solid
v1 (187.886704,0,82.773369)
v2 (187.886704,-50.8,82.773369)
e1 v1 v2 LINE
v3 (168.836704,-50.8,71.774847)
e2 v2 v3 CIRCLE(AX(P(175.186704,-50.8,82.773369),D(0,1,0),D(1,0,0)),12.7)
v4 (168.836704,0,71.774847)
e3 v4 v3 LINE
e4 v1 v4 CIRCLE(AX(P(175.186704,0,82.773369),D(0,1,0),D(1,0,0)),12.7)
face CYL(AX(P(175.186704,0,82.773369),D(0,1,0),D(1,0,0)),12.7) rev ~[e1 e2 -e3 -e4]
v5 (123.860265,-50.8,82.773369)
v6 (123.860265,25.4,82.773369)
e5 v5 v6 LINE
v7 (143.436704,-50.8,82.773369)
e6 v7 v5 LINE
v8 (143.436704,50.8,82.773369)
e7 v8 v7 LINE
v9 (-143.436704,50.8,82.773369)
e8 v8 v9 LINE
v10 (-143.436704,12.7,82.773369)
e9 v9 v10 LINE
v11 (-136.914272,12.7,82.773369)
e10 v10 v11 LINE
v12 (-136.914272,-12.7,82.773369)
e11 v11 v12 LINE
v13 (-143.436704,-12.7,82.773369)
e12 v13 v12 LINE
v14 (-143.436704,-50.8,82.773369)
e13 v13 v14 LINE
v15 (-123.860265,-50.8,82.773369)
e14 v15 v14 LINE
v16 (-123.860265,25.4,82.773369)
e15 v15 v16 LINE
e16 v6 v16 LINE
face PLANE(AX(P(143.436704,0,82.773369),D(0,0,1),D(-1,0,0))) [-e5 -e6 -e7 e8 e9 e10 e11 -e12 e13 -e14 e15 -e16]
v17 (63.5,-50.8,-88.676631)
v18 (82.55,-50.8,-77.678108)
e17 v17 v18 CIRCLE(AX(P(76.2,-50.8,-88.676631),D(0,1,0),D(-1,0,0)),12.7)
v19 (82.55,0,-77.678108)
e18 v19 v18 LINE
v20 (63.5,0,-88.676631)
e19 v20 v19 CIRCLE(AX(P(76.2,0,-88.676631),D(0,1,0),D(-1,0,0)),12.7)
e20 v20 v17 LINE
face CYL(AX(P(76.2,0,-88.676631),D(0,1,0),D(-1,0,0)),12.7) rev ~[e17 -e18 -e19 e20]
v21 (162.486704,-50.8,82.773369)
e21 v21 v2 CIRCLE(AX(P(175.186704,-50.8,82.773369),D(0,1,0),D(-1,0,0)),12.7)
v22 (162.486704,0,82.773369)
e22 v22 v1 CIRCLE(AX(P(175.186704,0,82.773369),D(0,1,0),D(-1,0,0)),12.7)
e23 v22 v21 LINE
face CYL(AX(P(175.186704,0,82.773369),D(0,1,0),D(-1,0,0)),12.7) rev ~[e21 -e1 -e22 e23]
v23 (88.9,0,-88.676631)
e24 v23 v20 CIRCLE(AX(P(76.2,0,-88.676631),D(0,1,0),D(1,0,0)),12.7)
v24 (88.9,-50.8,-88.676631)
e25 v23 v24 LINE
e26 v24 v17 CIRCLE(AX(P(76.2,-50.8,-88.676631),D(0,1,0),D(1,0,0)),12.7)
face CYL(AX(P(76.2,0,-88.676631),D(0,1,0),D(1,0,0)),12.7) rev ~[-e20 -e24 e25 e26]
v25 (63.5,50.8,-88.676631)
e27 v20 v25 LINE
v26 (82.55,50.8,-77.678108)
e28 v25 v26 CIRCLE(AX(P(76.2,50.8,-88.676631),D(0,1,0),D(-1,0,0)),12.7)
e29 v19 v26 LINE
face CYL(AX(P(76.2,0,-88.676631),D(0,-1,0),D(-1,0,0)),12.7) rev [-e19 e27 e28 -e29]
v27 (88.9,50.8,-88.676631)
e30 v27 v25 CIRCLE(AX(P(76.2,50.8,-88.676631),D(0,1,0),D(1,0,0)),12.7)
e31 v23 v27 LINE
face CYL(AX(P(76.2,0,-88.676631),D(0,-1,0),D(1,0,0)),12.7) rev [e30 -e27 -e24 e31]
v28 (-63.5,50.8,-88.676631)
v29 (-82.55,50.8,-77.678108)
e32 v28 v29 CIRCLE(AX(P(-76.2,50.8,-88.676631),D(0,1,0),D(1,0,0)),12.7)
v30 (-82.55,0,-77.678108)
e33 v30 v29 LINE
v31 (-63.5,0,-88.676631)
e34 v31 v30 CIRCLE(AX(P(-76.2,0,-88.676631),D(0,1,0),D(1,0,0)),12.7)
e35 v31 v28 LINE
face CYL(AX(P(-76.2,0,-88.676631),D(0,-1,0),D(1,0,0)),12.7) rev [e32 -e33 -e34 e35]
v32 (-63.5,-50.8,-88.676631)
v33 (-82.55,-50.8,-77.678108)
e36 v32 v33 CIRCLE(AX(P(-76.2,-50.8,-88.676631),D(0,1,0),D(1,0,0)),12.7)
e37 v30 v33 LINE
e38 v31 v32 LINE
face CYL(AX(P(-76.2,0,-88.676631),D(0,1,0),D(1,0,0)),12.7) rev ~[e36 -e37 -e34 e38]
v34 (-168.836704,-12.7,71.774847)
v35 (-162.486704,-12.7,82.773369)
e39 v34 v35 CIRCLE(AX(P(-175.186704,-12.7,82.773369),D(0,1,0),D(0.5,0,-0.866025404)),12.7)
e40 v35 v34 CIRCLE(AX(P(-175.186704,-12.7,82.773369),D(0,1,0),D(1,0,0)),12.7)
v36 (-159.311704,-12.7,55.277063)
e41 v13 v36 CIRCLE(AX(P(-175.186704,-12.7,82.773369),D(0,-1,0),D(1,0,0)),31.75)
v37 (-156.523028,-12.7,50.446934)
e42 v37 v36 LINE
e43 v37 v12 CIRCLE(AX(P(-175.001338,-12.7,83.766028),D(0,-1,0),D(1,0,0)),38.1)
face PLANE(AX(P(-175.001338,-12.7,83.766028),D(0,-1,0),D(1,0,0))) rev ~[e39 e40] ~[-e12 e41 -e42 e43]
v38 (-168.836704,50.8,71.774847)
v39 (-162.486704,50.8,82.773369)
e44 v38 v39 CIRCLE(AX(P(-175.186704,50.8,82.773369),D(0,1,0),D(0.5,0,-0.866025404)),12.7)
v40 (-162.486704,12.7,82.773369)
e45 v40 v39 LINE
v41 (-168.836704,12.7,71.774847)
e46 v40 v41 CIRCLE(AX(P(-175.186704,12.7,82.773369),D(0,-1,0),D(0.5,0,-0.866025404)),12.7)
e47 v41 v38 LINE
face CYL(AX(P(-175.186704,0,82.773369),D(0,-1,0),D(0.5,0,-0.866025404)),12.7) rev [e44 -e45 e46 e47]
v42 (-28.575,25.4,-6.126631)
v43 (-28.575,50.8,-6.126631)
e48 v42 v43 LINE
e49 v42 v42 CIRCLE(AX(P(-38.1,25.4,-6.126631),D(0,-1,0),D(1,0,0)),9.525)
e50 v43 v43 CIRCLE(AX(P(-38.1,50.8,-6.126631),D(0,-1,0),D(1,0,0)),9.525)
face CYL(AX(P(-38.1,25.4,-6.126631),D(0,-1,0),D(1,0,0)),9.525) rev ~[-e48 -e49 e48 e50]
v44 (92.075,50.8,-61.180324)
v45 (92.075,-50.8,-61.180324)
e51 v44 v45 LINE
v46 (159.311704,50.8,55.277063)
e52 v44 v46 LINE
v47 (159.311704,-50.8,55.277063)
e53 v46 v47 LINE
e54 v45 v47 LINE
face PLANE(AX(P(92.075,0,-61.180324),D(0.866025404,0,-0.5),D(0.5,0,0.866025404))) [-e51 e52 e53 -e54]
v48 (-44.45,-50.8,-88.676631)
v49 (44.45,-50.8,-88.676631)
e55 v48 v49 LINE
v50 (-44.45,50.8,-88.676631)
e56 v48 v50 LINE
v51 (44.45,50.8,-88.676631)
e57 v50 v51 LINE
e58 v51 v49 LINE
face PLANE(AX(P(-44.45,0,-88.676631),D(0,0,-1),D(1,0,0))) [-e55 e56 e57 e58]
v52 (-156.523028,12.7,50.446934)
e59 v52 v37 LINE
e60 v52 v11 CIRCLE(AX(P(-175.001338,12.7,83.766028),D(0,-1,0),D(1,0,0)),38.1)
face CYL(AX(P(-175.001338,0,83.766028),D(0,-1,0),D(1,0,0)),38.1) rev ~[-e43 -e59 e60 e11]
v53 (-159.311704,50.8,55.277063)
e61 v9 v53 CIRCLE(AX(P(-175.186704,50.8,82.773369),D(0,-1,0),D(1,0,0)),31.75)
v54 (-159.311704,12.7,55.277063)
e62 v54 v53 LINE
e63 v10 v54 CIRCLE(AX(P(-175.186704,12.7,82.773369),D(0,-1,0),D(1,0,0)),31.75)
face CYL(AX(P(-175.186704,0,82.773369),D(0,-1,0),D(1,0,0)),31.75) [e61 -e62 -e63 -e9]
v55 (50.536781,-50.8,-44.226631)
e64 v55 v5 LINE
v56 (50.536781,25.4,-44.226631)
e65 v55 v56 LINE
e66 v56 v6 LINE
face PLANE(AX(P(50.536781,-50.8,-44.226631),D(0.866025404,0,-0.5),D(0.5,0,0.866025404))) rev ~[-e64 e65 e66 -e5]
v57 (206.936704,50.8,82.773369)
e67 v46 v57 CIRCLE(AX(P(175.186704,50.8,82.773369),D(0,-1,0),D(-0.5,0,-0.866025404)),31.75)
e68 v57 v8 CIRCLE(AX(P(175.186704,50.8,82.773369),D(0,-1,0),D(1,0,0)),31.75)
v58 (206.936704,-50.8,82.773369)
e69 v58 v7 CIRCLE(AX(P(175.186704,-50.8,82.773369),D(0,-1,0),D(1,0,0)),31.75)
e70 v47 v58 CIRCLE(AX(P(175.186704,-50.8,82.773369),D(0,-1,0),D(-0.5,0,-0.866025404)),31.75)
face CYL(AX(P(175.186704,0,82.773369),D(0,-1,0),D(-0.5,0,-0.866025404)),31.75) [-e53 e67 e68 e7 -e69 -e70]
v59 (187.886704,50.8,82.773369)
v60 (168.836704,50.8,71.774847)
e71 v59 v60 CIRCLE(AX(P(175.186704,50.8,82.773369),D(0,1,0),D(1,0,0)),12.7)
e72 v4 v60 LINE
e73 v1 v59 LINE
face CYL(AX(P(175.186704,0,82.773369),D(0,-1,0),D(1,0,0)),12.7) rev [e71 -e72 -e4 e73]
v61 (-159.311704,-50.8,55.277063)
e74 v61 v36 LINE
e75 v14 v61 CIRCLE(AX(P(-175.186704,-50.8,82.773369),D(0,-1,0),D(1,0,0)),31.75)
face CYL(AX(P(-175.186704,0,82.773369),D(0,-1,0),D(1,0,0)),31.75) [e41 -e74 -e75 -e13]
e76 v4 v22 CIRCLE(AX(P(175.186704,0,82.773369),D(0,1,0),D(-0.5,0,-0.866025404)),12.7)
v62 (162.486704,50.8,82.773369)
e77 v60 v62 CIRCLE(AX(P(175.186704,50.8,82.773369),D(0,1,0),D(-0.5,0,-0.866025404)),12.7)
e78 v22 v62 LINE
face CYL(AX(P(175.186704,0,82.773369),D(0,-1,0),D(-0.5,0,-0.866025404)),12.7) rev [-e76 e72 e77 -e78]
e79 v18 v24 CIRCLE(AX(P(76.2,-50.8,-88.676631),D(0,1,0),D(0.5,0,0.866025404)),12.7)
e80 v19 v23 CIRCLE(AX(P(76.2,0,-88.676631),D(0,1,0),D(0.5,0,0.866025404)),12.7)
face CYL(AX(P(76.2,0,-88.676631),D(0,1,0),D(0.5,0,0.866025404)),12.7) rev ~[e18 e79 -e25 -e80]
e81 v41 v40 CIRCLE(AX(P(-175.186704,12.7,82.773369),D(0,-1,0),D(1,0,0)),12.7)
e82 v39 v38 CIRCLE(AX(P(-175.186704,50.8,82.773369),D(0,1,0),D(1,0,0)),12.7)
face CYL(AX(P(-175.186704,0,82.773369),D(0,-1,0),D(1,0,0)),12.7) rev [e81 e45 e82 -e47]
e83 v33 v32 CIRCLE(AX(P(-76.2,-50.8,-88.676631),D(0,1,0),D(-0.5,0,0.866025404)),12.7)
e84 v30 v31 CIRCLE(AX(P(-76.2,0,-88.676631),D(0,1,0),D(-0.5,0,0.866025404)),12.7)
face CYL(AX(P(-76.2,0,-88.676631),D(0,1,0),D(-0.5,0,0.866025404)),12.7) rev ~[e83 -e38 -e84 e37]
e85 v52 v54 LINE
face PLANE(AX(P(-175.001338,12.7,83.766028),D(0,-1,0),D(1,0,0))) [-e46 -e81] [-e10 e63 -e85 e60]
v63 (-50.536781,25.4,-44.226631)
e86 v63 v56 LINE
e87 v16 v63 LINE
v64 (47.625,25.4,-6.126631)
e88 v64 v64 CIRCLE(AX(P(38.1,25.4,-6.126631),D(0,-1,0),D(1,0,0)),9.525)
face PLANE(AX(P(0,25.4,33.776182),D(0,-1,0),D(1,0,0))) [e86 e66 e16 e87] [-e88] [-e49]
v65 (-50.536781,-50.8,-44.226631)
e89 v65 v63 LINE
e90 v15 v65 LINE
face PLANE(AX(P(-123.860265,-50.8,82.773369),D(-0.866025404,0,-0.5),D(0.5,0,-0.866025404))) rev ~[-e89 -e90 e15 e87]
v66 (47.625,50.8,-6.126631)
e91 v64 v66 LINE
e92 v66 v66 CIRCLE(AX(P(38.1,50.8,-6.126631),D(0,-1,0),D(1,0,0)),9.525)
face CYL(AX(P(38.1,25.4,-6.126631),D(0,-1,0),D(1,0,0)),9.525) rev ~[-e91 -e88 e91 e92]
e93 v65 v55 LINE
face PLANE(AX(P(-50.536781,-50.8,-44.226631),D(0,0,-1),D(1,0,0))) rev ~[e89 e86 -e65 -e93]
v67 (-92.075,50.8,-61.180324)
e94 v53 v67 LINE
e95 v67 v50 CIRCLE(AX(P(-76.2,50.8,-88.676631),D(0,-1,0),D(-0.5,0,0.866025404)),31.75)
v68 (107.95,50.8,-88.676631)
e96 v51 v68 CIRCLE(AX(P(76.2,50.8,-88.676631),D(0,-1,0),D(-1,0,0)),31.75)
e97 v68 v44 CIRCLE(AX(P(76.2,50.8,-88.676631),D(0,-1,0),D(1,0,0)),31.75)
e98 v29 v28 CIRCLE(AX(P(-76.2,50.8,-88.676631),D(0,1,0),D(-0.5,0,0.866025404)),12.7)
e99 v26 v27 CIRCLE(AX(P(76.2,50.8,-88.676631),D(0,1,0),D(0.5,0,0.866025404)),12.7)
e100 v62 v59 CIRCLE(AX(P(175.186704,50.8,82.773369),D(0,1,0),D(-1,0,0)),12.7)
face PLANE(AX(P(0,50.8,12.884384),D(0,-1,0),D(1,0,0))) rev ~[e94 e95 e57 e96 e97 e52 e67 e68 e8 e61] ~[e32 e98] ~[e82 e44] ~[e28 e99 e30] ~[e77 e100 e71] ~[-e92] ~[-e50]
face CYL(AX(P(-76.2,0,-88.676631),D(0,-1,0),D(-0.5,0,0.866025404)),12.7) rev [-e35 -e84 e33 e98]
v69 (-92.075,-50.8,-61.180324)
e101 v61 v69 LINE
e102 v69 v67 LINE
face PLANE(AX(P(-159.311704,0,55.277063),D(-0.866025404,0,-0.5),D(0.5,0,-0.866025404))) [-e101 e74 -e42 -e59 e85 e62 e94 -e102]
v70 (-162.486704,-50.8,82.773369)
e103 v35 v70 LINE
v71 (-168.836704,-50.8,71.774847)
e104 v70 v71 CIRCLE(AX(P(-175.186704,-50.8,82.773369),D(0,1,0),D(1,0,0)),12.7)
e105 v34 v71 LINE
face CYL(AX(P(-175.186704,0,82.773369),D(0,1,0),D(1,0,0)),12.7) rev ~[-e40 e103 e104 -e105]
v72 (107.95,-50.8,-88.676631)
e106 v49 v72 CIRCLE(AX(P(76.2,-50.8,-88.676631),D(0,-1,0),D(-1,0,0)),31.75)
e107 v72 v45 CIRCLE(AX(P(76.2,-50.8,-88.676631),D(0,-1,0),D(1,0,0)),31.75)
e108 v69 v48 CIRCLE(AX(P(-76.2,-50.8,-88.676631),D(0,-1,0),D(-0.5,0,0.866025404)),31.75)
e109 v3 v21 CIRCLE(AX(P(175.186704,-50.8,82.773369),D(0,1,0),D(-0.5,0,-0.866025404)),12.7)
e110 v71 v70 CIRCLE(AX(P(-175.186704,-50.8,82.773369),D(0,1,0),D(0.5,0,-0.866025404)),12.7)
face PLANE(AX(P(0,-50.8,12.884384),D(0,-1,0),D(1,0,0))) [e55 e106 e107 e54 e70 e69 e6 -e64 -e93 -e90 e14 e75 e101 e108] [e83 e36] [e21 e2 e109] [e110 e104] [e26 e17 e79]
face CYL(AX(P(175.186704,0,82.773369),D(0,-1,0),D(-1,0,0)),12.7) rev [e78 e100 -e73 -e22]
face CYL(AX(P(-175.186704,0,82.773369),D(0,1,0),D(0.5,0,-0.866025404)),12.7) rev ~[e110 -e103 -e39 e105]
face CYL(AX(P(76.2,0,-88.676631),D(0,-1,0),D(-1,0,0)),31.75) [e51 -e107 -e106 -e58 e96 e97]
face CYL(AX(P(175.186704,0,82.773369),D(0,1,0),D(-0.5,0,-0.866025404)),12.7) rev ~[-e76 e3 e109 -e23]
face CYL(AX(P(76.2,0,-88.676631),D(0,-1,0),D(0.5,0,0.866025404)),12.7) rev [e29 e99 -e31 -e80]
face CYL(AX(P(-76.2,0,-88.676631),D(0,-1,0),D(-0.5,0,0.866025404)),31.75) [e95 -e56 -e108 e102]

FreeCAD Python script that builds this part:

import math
import FreeCAD as App
import Part
import Sketcher
Q = App.Units.Quantity


def add_polygon(sketch, points):
    """Adds a closed chain of lines whose ends are joined by coincident constraints."""
    first, n = sketch.GeometryCount, len(points)
    for a, b in zip(points, points[1:] + points[:1]):
        sketch.addGeometry(Part.LineSegment(App.Vector(*a, 0), App.Vector(*b, 0)), False)
    for i in range(n):
        sketch.addConstraint(Sketcher.Constraint("Coincident", first + i, 2, first + (i + 1) % n, 1))

doc = App.newDocument("Part")
body = doc.addObject("PartDesign::Body", "Body")

sketch1 = doc.addObject("Sketcher::SketchObject", "Sketch")
body.addObject(sketch1)
sketch1.AttachmentSupport = (doc.XZ_Plane, [""])
sketch1.MapMode = "FlatFace"
sketch1.addGeometry([
    Part.LineSegment(App.Vector(-44, -89, 0), App.Vector(44, -89, 0)),
    Part.ArcOfCircle(Part.Circle(App.Vector(76, -89, 0), App.Vector(0, 0, 1), 32), math.radians(180), math.radians(360)),
    Part.ArcOfCircle(Part.Circle(App.Vector(76, -89, 0), App.Vector(0, 0, 1), 32), math.radians(0), math.radians(60)),
    Part.LineSegment(App.Vector(92, -61, 0), App.Vector(159, 55, 0)),
    Part.ArcOfCircle(Part.Circle(App.Vector(175, 83, 0), App.Vector(0, 0, 1), 32), math.radians(-120), math.radians(0)),
    Part.ArcOfCircle(Part.Circle(App.Vector(175, 83, 0), App.Vector(0, 0, 1), 32), math.radians(0), math.radians(180)),
    Part.LineSegment(App.Vector(143, 83, 0), App.Vector(-143, 83, 0)),
    Part.ArcOfCircle(Part.Circle(App.Vector(-175, 83, 0), App.Vector(0, 0, 1), 32), math.radians(0), math.radians(300)),
    Part.LineSegment(App.Vector(-159, 55, 0), App.Vector(-92, -61, 0)),
    Part.ArcOfCircle(Part.Circle(App.Vector(-76, -89, 0), App.Vector(0, 0, 1), 32), math.radians(120), math.radians(360)),
    Part.ArcOfCircle(Part.Circle(App.Vector(-175, 83, 0), App.Vector(0, 0, 1), 13), math.radians(-60), math.radians(0)),
    Part.ArcOfCircle(Part.Circle(App.Vector(-175, 83, 0), App.Vector(0, 0, 1), 13), math.radians(0), math.radians(300)),
    Part.ArcOfCircle(Part.Circle(App.Vector(175, 83, 0), App.Vector(0, 0, 1), 13), math.radians(180), math.radians(240)),
    Part.ArcOfCircle(Part.Circle(App.Vector(175, 83, 0), App.Vector(0, 0, 1), 13), math.radians(0), math.radians(180)),
    Part.ArcOfCircle(Part.Circle(App.Vector(175, 83, 0), App.Vector(0, 0, 1), 13), math.radians(-120), math.radians(0)),
    Part.ArcOfCircle(Part.Circle(App.Vector(76, -89, 0), App.Vector(0, 0, 1), 13), math.radians(60), math.radians(180)),
    Part.ArcOfCircle(Part.Circle(App.Vector(76, -89, 0), App.Vector(0, 0, 1), 13), math.radians(0), math.radians(60)),
    Part.ArcOfCircle(Part.Circle(App.Vector(76, -89, 0), App.Vector(0, 0, 1), 13), math.radians(180), math.radians(360)),
    Part.ArcOfCircle(Part.Circle(App.Vector(-76, -89, 0), App.Vector(0, 0, 1), 13), math.radians(0), math.radians(120)),
    Part.ArcOfCircle(Part.Circle(App.Vector(-76, -89, 0), App.Vector(0, 0, 1), 13), math.radians(120), math.radians(360)),
], False)
sketch1.addConstraint([
    Sketcher.Constraint("Coincident", 0, 2, 1, 1),
    Sketcher.Constraint("Tangent", 1, 2, 2, 1),
    Sketcher.Constraint("Coincident", 2, 2, 3, 1),
    Sketcher.Constraint("Coincident", 3, 2, 4, 1),
    Sketcher.Constraint("Tangent", 4, 2, 5, 1),
    Sketcher.Constraint("Coincident", 5, 2, 6, 1),
    Sketcher.Constraint("Coincident", 6, 2, 7, 1),
    Sketcher.Constraint("Coincident", 7, 2, 8, 1),
    Sketcher.Constraint("Coincident", 8, 2, 9, 1),
    Sketcher.Constraint("Coincident", 9, 2, 0, 1),
    Sketcher.Constraint("Tangent", 10, 1, 11, 2),
    Sketcher.Constraint("Coincident", 11, 1, 10, 2),
    Sketcher.Constraint("Tangent", 12, 1, 13, 2),
    Sketcher.Constraint("Tangent", 13, 1, 14, 2),
    Sketcher.Constraint("Tangent", 14, 1, 12, 2),
    Sketcher.Constraint("Tangent", 15, 1, 16, 2),
    Sketcher.Constraint("Tangent", 16, 1, 17, 2),
    Sketcher.Constraint("Tangent", 17, 1, 15, 2),
    Sketcher.Constraint("Tangent", 18, 1, 19, 2),
    Sketcher.Constraint("Coincident", 19, 1, 18, 2),
    Sketcher.Constraint("Horizontal", 0),
    Sketcher.Constraint("Horizontal", 6),
    Sketcher.Constraint("Coincident", 10, 3, 7, 3),
    Sketcher.Constraint("Coincident", 12, 3, 4, 3),
    Sketcher.Constraint("Coincident", 15, 3, 1, 3),
    Sketcher.Constraint("Coincident", 18, 3, 9, 3),
    Sketcher.Constraint("Equal", 1, 2),
    Sketcher.Constraint("Equal", 2, 4),
    Sketcher.Constraint("Equal", 4, 5),
    Sketcher.Constraint("Equal", 5, 7),
    Sketcher.Constraint("Equal", 7, 9),
    Sketcher.Constraint("Equal", 11, 12),
    Sketcher.Constraint("Equal", 14, 15),
    Sketcher.Constraint("Equal", 17, 18),
    Sketcher.Constraint("Symmetric", 4, 3, 7, 3, -2),
    Sketcher.Constraint("Symmetric", 1, 3, 9, 3, -2),
    Sketcher.Constraint("Horizontal", 19, 3, 0, 2),
    Sketcher.Constraint("Horizontal", 0, 2, 1, 2),
    Sketcher.Constraint("Horizontal", 14, 3, 4, 2),
    Sketcher.Constraint("Horizontal", 4, 2, 5, 2),
    Sketcher.Constraint("Horizontal", 3, 2, 7, 2),
    Sketcher.Constraint("Horizontal", 2, 2, 8, 2),
    Sketcher.Constraint("Horizontal", 6, 2, 11, 1),
    Sketcher.Constraint("Horizontal", 11, 1, 12, 1),
    Sketcher.Constraint("Horizontal", 12, 1, 13, 1),
    Sketcher.Constraint("Horizontal", 10, 1, 14, 1),
    Sketcher.Constraint("Horizontal", 9, 2, 16, 1),
    Sketcher.Constraint("Horizontal", 16, 1, 17, 1),
    Sketcher.Constraint("Horizontal", 17, 1, 18, 1),
    Sketcher.Constraint("Horizontal", 15, 1, 19, 1),
    Sketcher.Constraint("Radius", 10, Q("0.5 in")),
    Sketcher.Constraint("Radius", 1, Q("1.25 in")),
    Sketcher.Constraint("DistanceX", 0, 1, 0, 2, Q("3.5 in")),
    Sketcher.Constraint("Angle", 3, Q("60 deg")),
    Sketcher.Constraint("DistanceX", 10, 1, 6, 2, Q("1 in")),
    Sketcher.Constraint("DistanceX", -1, 1, 15, 1, Q("3.25 in")),
    Sketcher.Constraint("DistanceY", 1, 3, 4, 3, Q("6.75 in")),
    Sketcher.Constraint("DistanceX", -1, 1, 2, 2, Q("3.625 in")),
    Sketcher.Constraint("DistanceX", 3, 2, 4, 3, Q("0.625 in")),
    Sketcher.Constraint("DistanceY", 1, 3, -1, 1, Q("88.676631 mm")),
])
pad1 = doc.addObject("PartDesign::Pad", "Pad")
body.addObject(pad1)
pad1.Profile = sketch1
pad1.Length = Q("4 in")
pad1.Midplane = True

sketch2 = doc.addObject("Sketcher::SketchObject", "Sketch001")
body.addObject(sketch2)
sketch2.AttachmentSupport = (doc.XZ_Plane, [""])
sketch2.MapMode = "FlatFace"
sketch2.AttachmentOffset = App.Placement(App.Vector(0, 0, 2 * 25.4), App.Rotation())
add_polygon(sketch2, [(51, -44), (124, 83), (-124, 83), (-51, -44)])
sketch2.addConstraint([
    Sketcher.Constraint("Horizontal", 1),
    Sketcher.Constraint("Horizontal", 3),
    Sketcher.Constraint("Equal", 0, 2),
    Sketcher.Constraint("Angle", 0, Q("60 deg")),
    Sketcher.Constraint("DistanceY", 2, 2, 1, 2, Q("5 in")),
    Sketcher.Constraint("DistanceX", 1, 2, 1, 1, Q("247.720529 mm")),
    Sketcher.Constraint("DistanceY", -1, 1, 0, 2, Q("82.773369 mm")),
    Sketcher.Constraint("DistanceX", 2, 2, -1, 1, Q("50.536781 mm")),
])
pocket1 = doc.addObject("PartDesign::Pocket", "Pocket")
body.addObject(pocket1)
pocket1.Profile = sketch2
pocket1.Length = Q("3 in")

sketch3 = doc.addObject("Sketcher::SketchObject", "Sketch002")
body.addObject(sketch3)
sketch3.AttachmentSupport = (doc.XZ_Plane, [""])
sketch3.MapMode = "FlatFace"
sketch3.addGeometry(Part.Circle(App.Vector(-175, 84, 0), App.Vector(0, 0, 1), 38), False)
sketch3.addConstraint([
    Sketcher.Constraint("Diameter", 0, Q("3 in")),
    Sketcher.Constraint("DistanceX", 0, 3, -1, 1, Q("175.001338 mm")),
    Sketcher.Constraint("DistanceY", -1, 1, 0, 3, Q("83.766028 mm")),
])
pocket2 = doc.addObject("PartDesign::Pocket", "Pocket001")
body.addObject(pocket2)
pocket2.Profile = sketch3
pocket2.Length = Q("1 in")
pocket2.Midplane = True

sketch4 = doc.addObject("Sketcher::SketchObject", "Sketch003")
body.addObject(sketch4)
sketch4.AttachmentSupport = (doc.XZ_Plane, [""])
sketch4.MapMode = "FlatFace"
sketch4.AttachmentOffset = App.Placement(App.Vector(0, 0, -1 * 25.4), App.Rotation())
sketch4.addGeometry([
    Part.Circle(App.Vector(-38, -6, 0), App.Vector(0, 0, 1), 10),
    Part.Circle(App.Vector(38, -6, 0), App.Vector(0, 0, 1), 10),
], False)
sketch4.addConstraint([
    Sketcher.Constraint("Equal", 0, 1),
    Sketcher.Constraint("Symmetric", 0, 3, 1, 3, -2),
    Sketcher.Constraint("Diameter", 0, Q("0.75 in")),
    Sketcher.Constraint("DistanceX", 0, 3, 1, 3, Q("3 in")),
    Sketcher.Constraint("DistanceY", 0, 3, -1, 1, Q("6.126631 mm")),
])
pocket3 = doc.addObject("PartDesign::Pocket", "Pocket002")
body.addObject(pocket3)
pocket3.Profile = sketch4
pocket3.Type = "ThroughAll"

doc.recompute()
